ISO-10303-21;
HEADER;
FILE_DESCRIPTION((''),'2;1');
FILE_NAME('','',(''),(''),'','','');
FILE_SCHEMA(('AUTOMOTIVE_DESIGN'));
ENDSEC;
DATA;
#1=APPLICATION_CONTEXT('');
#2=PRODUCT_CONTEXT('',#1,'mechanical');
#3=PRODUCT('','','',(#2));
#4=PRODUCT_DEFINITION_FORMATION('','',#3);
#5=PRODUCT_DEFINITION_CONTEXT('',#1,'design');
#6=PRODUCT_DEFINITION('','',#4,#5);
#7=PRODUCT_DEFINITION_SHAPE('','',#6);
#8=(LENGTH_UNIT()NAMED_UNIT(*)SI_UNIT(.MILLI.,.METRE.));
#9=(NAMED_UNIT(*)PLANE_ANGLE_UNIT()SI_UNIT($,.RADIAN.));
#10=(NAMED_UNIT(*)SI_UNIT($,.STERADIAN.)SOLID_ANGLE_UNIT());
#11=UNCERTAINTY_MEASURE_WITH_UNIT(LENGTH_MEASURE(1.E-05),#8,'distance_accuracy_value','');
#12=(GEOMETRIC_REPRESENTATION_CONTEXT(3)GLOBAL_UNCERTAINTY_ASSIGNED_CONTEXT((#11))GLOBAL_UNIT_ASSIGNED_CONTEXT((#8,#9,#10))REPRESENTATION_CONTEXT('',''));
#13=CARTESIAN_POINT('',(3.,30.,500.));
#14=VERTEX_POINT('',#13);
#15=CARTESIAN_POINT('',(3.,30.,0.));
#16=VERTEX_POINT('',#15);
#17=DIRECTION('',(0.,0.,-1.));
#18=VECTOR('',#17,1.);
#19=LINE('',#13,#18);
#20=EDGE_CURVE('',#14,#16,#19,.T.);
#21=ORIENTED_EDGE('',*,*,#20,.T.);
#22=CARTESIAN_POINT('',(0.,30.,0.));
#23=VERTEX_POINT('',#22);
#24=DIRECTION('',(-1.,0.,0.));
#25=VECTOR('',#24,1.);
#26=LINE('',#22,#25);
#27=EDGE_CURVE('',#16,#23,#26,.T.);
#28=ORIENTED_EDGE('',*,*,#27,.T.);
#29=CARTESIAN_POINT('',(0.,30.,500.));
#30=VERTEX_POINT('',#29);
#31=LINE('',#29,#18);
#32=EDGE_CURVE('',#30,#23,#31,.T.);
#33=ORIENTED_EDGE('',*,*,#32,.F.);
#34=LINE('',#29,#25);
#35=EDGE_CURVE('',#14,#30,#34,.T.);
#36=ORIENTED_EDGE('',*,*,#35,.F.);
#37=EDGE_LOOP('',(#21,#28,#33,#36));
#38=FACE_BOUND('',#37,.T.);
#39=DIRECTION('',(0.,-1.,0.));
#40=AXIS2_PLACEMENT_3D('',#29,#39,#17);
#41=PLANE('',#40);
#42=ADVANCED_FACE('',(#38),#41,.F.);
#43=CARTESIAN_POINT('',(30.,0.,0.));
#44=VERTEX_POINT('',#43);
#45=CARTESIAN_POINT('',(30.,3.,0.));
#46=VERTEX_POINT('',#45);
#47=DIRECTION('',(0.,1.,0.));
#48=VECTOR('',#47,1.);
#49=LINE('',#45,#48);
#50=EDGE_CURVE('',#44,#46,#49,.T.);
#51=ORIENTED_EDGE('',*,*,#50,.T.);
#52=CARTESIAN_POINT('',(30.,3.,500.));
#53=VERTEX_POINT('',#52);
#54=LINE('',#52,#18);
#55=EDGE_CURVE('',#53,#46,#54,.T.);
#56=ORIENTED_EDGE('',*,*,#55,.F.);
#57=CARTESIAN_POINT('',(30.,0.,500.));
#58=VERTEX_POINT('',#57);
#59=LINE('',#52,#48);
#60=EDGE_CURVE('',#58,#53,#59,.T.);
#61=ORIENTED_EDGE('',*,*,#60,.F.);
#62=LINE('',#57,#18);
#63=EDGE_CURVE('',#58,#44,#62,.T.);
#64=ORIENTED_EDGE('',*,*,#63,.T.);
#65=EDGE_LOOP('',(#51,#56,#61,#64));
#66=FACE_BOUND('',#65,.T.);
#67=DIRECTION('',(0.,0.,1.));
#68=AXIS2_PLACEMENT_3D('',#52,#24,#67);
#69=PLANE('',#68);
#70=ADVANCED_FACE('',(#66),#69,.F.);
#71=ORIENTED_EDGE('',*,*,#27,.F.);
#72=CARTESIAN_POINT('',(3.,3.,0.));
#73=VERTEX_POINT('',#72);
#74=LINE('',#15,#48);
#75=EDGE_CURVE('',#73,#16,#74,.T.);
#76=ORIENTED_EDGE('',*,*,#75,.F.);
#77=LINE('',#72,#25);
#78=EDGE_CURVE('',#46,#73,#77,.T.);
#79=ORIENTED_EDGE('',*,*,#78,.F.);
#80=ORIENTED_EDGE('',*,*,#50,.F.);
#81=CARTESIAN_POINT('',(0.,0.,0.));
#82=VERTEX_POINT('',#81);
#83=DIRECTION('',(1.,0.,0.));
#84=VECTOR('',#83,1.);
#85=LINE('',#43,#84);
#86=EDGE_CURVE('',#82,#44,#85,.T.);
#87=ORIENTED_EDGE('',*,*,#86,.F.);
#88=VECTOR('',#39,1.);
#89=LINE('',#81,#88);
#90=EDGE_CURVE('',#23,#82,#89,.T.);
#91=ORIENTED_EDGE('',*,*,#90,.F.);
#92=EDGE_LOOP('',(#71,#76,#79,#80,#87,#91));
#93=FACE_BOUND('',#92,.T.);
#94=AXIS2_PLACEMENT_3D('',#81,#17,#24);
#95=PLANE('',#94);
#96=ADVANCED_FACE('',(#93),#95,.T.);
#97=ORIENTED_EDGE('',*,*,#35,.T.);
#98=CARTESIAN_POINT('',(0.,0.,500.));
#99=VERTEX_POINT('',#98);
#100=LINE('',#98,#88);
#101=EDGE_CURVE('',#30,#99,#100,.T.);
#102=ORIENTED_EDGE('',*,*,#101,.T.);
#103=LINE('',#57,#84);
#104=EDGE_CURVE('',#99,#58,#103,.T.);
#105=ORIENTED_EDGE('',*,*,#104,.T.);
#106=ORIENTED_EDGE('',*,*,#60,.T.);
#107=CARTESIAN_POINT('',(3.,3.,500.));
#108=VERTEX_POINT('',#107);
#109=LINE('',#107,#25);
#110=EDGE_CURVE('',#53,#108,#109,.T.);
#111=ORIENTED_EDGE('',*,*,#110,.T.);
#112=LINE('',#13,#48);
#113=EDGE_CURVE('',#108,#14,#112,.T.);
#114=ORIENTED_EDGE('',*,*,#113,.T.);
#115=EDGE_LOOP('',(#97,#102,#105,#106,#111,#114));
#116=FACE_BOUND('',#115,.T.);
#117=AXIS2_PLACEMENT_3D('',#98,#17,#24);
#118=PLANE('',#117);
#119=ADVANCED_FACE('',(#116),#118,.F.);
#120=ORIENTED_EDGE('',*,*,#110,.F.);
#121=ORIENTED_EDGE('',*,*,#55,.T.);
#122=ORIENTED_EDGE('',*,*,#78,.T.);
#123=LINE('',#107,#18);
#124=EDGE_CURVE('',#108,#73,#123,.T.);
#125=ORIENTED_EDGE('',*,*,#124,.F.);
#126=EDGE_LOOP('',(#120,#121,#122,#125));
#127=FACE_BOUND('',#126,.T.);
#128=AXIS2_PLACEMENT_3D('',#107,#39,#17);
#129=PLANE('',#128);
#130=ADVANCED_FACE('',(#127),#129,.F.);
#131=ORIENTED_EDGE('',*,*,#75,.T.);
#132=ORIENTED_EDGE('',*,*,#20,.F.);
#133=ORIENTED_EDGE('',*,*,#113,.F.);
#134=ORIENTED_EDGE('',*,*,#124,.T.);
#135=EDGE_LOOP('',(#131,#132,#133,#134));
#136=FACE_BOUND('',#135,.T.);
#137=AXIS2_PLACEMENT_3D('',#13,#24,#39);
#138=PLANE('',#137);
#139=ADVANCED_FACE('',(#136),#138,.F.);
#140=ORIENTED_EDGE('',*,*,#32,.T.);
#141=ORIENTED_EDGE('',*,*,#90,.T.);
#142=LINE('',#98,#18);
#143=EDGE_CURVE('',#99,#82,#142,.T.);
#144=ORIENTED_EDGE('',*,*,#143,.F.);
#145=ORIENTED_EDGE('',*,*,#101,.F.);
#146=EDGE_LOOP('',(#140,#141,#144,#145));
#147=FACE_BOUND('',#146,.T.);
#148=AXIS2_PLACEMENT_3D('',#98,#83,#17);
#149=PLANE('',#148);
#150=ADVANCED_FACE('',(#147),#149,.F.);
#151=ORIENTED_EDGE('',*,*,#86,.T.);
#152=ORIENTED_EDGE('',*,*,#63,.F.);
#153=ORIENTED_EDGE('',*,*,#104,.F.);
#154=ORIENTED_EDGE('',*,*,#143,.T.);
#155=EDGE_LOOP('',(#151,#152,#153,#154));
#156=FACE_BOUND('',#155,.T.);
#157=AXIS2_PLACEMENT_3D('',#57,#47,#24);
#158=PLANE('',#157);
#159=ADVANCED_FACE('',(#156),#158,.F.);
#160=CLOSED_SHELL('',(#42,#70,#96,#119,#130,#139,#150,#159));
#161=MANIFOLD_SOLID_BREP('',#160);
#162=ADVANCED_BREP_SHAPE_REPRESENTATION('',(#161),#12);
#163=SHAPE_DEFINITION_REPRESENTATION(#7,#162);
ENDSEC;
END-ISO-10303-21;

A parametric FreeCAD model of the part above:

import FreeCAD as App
import Part
import Sketcher


def add_polygon(sketch, points):
    """Adds a closed chain of lines whose ends are joined by coincident constraints."""
    first, n = sketch.GeometryCount, len(points)
    for a, b in zip(points, points[1:] + points[:1]):
        sketch.addGeometry(Part.LineSegment(App.Vector(*a, 0), App.Vector(*b, 0)), False)
    for i in range(n):
        sketch.addConstraint(Sketcher.Constraint("Coincident", first + i, 2, first + (i + 1) % n, 1))

doc = App.newDocument("Part")
body = doc.addObject("PartDesign::Body", "Body")

# Sketch on XY plane
sketch1 = body.newObject("Sketcher::SketchObject", "Sketch")
sketch1.AttachmentSupport = (doc.getObject("XY_Plane"), [""])
sketch1.MapMode = "FlatFace"
add_polygon(sketch1, [(0, 30), (0, 0), (30, 0), (30, 3), (3, 3), (3, 30)])  # lines 0-5
sketch1.addConstraint([
    Sketcher.Constraint("Vertical", 0),
    Sketcher.Constraint("Horizontal", 1),
    Sketcher.Constraint("Vertical", 2),
    Sketcher.Constraint("Horizontal", 3),
    Sketcher.Constraint("Vertical", 4),
    Sketcher.Constraint("Horizontal", 5),
    Sketcher.Constraint("Coincident", 0, 2, -1, 1),
    Sketcher.Constraint("Equal", 1, 0),
    Sketcher.Constraint("Equal", 5, 2),
    Sketcher.Constraint("DistanceX", 1, 1, 1, 2, 30.0),
    Sketcher.Constraint("DistanceX", 3, 2, 3, 1, 27.0),
])
pad1 = body.newObject("PartDesign::Pad", "Pad")
pad1.Profile = sketch1
pad1.Length = 500

doc.recompute()
